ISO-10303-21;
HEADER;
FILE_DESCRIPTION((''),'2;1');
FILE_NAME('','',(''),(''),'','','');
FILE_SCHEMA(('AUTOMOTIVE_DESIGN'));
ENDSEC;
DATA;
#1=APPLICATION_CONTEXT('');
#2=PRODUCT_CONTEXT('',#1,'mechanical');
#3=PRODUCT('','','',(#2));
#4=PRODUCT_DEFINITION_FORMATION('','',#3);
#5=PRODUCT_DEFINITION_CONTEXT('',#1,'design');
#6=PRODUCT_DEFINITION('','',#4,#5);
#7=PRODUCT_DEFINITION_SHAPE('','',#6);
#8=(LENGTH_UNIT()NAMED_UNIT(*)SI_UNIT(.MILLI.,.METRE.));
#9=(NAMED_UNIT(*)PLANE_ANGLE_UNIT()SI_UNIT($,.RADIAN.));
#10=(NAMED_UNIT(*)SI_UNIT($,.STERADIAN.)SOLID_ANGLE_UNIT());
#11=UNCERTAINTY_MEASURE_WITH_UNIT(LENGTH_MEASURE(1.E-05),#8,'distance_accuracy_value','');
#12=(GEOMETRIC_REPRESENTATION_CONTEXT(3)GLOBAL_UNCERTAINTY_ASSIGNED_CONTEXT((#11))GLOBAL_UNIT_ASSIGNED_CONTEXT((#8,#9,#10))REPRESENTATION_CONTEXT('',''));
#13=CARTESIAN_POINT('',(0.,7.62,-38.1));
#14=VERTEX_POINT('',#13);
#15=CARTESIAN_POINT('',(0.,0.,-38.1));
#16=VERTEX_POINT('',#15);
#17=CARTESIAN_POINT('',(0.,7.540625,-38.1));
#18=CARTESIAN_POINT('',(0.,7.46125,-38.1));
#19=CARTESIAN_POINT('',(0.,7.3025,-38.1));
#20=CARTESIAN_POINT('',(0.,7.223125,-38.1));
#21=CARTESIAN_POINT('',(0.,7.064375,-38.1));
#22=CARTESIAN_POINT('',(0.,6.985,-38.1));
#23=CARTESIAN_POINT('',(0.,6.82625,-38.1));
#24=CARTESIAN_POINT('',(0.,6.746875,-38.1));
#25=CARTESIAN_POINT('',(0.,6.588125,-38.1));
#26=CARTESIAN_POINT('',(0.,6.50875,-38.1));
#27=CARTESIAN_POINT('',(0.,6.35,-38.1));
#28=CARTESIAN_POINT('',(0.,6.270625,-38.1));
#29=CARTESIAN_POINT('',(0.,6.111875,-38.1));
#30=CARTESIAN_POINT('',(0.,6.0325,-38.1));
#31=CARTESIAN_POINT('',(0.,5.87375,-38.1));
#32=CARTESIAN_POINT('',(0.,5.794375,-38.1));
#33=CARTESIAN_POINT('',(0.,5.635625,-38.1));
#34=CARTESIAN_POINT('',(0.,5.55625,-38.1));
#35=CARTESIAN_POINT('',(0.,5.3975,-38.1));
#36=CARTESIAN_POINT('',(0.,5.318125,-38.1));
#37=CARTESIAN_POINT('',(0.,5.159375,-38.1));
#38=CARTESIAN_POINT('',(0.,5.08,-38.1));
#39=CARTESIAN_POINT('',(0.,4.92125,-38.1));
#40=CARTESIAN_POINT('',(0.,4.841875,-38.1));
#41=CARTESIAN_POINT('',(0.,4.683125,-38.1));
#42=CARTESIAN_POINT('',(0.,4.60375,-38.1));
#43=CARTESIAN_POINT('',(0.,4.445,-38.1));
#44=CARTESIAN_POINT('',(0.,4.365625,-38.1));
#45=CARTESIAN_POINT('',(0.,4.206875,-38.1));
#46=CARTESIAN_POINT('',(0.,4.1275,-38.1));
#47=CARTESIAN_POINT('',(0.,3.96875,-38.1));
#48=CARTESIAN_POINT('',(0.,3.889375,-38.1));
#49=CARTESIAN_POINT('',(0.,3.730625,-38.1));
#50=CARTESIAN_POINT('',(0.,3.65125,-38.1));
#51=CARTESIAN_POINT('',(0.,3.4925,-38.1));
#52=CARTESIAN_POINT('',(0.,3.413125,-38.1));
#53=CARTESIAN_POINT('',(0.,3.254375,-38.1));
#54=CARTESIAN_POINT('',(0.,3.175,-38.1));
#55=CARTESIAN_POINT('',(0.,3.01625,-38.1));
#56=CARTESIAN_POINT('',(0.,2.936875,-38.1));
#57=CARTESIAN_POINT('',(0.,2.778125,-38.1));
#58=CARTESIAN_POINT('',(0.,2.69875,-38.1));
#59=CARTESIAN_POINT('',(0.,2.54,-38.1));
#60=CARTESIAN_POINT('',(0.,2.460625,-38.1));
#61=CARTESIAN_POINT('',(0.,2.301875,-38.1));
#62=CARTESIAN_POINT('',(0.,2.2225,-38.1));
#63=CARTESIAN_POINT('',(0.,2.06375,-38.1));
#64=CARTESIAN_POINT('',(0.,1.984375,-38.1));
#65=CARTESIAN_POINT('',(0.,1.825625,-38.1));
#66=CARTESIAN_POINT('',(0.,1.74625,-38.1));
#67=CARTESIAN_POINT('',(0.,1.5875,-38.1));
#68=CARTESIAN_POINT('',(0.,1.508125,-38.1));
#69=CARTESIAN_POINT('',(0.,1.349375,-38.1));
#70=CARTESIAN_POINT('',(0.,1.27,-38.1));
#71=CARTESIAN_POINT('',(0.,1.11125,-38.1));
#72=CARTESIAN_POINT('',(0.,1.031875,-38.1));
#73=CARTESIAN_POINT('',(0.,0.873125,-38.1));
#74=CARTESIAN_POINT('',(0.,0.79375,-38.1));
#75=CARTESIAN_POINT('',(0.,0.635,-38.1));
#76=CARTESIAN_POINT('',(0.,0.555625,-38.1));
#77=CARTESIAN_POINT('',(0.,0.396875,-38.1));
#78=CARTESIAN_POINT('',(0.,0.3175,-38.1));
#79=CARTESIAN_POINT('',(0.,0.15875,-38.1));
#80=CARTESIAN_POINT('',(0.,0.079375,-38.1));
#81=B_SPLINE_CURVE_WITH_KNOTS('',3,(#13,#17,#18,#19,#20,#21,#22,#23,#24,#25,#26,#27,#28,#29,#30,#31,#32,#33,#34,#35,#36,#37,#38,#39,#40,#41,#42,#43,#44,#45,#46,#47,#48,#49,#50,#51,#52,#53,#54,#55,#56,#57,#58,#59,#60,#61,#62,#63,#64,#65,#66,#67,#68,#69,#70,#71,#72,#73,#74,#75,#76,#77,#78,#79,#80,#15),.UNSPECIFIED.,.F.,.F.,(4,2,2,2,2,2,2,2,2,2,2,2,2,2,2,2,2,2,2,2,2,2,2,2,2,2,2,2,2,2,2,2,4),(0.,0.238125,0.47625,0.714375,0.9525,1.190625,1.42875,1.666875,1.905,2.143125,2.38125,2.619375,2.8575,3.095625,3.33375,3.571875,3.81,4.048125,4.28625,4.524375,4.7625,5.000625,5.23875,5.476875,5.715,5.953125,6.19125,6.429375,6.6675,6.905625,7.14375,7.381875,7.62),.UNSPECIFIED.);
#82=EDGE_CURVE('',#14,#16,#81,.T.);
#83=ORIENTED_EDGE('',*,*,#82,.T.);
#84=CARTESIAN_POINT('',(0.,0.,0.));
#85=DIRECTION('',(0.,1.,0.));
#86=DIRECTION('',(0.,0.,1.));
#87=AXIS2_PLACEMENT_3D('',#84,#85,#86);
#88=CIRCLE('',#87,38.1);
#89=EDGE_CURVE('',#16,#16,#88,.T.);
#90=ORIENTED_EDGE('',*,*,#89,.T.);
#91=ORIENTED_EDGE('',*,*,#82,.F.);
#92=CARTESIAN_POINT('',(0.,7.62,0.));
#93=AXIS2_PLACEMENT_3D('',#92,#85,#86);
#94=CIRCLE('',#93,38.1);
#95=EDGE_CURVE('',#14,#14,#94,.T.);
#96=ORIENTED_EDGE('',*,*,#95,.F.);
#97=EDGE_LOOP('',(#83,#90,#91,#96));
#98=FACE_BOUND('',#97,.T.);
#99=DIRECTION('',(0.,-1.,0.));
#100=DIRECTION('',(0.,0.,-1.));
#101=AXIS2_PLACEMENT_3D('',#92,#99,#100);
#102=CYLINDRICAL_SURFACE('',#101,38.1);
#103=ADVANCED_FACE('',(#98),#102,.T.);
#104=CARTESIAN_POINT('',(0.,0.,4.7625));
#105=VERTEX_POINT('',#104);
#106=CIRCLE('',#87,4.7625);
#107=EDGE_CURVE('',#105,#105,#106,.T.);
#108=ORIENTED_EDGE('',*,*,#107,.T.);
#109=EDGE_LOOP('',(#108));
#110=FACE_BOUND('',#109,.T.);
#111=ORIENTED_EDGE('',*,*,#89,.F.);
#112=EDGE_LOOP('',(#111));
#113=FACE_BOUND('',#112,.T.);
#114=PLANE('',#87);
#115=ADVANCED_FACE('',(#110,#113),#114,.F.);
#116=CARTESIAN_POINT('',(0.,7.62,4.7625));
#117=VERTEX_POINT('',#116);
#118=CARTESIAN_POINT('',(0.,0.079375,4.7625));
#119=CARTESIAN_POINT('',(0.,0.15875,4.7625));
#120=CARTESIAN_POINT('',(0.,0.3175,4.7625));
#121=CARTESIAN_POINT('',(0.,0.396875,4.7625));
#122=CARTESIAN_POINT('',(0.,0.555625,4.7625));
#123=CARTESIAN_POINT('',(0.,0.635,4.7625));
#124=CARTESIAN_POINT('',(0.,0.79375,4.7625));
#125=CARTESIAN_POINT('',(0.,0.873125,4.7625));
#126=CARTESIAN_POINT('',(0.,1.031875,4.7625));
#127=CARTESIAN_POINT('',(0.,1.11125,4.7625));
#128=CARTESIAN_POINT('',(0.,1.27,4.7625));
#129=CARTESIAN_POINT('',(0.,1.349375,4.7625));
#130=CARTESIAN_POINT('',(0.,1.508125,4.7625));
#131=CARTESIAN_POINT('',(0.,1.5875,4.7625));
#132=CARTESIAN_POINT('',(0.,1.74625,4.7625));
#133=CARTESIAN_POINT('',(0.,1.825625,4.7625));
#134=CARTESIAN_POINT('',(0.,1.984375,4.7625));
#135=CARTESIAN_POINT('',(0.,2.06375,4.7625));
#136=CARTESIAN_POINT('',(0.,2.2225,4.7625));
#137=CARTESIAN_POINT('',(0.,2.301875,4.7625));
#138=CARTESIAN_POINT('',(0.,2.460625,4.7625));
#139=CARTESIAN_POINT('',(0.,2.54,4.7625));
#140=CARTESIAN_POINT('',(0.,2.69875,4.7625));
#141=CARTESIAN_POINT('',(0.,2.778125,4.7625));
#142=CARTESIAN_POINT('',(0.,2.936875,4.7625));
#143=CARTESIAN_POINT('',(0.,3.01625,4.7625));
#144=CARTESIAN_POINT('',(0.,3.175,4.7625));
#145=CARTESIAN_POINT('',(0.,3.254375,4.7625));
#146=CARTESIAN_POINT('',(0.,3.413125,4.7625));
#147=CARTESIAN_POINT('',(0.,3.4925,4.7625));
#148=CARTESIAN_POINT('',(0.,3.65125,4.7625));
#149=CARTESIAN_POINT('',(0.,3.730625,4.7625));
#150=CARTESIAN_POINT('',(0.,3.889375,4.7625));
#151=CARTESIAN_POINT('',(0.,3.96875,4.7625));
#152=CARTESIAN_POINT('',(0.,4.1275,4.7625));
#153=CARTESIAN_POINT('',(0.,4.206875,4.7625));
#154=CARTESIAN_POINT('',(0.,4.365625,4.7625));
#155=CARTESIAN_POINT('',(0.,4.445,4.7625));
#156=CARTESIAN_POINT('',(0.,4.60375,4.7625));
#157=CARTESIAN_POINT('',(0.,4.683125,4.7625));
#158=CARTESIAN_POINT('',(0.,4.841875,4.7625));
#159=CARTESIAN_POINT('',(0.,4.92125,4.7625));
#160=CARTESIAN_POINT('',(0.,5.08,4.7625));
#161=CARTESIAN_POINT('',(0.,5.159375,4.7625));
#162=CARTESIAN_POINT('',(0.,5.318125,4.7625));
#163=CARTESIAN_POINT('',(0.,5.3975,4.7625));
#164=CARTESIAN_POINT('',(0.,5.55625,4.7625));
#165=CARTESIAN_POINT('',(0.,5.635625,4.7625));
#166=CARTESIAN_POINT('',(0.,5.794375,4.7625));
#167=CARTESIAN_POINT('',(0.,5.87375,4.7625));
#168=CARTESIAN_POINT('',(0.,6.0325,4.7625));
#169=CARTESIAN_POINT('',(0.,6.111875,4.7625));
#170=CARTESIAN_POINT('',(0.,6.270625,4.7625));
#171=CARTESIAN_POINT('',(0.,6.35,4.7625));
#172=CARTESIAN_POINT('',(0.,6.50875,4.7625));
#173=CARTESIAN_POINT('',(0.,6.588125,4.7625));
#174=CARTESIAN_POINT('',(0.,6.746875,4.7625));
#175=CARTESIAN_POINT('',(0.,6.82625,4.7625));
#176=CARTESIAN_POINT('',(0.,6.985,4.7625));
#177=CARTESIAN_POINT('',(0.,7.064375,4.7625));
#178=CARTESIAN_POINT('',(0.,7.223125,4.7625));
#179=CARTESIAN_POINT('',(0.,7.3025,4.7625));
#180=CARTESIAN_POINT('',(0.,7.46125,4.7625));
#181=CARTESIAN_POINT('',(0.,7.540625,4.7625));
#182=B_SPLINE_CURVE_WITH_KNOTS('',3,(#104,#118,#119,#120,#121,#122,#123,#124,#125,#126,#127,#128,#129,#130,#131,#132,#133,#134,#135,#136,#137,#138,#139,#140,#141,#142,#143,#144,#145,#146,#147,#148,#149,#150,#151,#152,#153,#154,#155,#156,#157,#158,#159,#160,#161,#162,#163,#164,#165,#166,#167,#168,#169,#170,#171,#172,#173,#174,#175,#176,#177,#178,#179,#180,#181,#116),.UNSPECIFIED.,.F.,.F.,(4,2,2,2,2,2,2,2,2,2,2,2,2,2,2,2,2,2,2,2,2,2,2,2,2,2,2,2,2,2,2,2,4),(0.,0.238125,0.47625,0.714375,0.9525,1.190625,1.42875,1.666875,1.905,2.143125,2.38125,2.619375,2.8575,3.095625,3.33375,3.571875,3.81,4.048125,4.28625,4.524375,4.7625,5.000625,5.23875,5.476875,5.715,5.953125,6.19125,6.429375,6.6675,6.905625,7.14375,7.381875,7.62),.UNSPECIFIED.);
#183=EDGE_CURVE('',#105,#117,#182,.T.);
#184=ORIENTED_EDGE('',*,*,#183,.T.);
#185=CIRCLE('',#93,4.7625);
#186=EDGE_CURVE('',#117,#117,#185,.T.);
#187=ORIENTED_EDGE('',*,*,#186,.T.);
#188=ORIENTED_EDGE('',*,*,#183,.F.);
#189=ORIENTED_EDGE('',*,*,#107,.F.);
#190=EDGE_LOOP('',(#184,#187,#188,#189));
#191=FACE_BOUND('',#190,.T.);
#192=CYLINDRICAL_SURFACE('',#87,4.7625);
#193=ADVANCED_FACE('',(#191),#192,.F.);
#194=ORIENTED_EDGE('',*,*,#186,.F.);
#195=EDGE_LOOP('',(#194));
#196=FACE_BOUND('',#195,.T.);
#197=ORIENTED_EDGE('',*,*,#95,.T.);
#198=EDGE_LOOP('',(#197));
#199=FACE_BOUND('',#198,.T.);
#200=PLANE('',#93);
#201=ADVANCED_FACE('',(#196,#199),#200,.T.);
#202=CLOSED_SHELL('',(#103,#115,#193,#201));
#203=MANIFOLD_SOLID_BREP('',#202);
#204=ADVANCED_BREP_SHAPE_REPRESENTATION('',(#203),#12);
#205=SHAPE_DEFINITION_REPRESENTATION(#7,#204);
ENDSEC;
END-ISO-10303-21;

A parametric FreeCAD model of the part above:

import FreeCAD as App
import Part
import Sketcher
Q = App.Units.Quantity

doc = App.newDocument("Part")
body = doc.addObject("PartDesign::Body", "Body")

# Sketch on XZ plane
sketch1 = body.newObject("Sketcher::SketchObject", "Sketch")
sketch1.AttachmentSupport = (doc.getObject("XZ_Plane"), [""])
sketch1.MapMode = "FlatFace"
sketch1.addGeometry(Part.Circle(App.Vector(0, 0, 0), App.Vector(0, 0, 1), 38), False)
sketch1.addConstraint(Sketcher.Constraint("Coincident", 0, 3, -1, 1))
sketch1.addConstraint(Sketcher.Constraint("Diameter", 0, Q("3 in")))
pad1 = body.newObject("PartDesign::Pad", "Pad")
pad1.Profile = sketch1
pad1.Length = Q("0.3 in")
pad1.Reversed = True

# Sketch on XZ plane
sketch2 = body.newObject("Sketcher::SketchObject", "Sketch001")
sketch2.AttachmentSupport = (doc.getObject("XZ_Plane"), [""])
sketch2.MapMode = "FlatFace"
sketch2.AttachmentOffset = App.Placement(App.Vector(0, 0, -0.3 * 25.4), App.Rotation())
sketch2.addGeometry(Part.Circle(App.Vector(0, 0, 0), App.Vector(0, 0, 1), 4.8), False)
sketch2.addConstraint(Sketcher.Constraint("Coincident", 0, 3, -1, 1))
sketch2.addConstraint(Sketcher.Constraint("Diameter", 0, Q("0.375 in")))
pocket1 = body.newObject("PartDesign::Pocket", "Pocket")
pocket1.Profile = sketch2
pocket1.Length = Q("0.3 in")
pocket1.Reversed = True

doc.recompute()
